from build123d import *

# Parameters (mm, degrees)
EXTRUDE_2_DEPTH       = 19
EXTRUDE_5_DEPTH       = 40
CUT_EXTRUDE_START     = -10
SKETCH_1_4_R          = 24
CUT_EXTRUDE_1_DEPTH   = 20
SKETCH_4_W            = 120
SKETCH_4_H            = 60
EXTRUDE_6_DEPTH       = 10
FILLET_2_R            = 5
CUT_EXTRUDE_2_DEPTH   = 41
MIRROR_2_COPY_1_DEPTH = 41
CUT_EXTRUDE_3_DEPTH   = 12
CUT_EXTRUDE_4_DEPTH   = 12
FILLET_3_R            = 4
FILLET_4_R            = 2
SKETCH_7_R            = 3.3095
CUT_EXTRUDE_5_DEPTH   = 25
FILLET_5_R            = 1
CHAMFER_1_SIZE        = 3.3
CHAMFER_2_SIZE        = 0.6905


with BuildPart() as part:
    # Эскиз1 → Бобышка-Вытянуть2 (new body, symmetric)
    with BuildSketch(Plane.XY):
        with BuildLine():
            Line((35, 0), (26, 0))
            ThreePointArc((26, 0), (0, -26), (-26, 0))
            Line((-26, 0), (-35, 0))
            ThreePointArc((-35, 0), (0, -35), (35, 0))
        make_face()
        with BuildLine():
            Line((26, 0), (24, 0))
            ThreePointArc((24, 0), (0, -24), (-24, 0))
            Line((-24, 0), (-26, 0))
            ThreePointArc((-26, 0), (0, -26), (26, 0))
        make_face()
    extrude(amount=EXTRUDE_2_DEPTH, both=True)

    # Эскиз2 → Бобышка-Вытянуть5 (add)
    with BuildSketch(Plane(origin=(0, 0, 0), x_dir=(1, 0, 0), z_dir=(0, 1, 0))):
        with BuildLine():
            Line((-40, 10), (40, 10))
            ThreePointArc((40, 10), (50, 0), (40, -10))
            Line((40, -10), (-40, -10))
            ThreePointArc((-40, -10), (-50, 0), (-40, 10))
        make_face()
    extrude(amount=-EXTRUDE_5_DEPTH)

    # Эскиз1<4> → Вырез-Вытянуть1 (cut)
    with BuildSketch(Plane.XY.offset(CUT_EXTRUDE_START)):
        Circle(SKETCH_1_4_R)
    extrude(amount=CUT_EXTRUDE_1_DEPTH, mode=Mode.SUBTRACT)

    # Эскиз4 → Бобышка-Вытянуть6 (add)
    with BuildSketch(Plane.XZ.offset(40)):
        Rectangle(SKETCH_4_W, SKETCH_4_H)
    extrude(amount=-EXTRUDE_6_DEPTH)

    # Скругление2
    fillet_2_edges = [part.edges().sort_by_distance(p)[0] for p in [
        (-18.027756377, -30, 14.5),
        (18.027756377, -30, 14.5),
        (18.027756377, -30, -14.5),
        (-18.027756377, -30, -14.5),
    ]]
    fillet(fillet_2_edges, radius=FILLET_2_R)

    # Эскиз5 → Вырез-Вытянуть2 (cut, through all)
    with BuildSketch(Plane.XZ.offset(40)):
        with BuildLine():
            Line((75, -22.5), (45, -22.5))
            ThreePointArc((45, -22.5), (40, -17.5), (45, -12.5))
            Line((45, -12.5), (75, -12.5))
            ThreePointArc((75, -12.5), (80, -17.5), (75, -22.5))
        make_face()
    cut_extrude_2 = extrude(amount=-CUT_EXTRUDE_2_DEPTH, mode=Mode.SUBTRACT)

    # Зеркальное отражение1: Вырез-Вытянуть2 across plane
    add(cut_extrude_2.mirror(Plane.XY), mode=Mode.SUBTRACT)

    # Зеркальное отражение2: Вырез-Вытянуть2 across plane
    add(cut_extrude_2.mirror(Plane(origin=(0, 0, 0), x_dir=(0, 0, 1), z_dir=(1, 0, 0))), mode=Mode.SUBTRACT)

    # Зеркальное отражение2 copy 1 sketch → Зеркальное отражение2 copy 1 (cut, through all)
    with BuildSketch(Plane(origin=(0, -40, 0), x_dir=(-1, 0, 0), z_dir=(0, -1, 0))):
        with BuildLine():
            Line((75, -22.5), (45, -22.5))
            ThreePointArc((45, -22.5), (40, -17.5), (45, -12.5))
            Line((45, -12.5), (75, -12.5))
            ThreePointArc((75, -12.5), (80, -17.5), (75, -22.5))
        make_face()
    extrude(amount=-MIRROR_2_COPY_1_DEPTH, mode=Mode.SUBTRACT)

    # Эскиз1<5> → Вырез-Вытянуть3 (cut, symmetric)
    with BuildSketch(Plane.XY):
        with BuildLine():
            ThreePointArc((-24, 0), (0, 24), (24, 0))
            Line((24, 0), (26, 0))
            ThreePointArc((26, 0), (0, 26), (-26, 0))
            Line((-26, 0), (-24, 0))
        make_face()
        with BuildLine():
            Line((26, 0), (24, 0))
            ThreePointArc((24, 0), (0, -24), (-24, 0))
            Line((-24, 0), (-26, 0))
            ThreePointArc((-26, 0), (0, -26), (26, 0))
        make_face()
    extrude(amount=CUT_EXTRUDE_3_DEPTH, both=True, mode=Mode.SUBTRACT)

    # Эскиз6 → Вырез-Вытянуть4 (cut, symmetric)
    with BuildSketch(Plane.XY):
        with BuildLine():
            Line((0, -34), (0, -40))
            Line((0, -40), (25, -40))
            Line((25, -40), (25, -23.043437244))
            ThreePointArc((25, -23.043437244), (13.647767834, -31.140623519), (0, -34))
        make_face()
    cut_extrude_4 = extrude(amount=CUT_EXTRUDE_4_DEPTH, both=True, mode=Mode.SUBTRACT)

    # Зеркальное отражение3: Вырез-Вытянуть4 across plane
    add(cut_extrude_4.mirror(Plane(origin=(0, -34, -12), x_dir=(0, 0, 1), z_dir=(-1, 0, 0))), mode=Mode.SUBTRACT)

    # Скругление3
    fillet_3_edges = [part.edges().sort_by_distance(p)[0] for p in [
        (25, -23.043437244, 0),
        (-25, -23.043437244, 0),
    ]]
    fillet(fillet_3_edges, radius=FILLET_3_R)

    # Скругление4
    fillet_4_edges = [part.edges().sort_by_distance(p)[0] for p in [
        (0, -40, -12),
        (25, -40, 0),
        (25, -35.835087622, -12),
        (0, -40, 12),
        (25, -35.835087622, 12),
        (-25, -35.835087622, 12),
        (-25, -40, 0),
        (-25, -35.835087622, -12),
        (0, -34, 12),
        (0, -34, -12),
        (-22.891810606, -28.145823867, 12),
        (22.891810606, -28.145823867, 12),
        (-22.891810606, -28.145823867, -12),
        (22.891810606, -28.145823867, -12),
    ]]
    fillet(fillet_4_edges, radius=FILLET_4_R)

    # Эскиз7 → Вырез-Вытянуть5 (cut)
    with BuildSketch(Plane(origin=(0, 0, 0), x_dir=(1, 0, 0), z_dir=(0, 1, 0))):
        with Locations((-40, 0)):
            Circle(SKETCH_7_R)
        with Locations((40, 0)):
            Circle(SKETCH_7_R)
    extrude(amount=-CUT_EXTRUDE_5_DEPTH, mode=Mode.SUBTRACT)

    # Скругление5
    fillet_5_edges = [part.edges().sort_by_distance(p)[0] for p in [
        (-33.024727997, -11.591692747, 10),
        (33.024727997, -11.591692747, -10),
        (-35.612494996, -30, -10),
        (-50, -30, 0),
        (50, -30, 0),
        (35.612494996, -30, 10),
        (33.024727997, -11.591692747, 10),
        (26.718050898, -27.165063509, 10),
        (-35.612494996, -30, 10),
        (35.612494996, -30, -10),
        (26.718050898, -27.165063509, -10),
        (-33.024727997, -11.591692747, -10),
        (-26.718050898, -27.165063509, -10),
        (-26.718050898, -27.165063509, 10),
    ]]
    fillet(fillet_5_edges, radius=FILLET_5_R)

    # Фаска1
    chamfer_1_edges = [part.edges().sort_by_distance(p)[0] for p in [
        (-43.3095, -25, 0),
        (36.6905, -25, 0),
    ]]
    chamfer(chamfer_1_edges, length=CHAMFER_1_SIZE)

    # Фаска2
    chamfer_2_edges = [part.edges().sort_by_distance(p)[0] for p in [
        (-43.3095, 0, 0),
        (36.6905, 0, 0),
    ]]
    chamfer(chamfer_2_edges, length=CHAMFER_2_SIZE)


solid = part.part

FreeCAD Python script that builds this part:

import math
import FreeCAD as App
import Part
import Sketcher

V = App.Vector
Q = App.Units.Quantity


def edges_at(feature, points):
    """Names of the edges that pass closest to the given points."""
    edges = feature.Shape.Edges
    near = lambda p: min(range(len(edges)), key=lambda i: edges[i].distToShape(Part.Vertex(*p))[0])
    return sorted({f"Edge{near(p) + 1}" for p in points})

doc = App.newDocument("Part")
body = doc.addObject("PartDesign::Body", "Body")

# Sketch on XY plane
sketch1 = body.newObject("Sketcher::SketchObject", "Sketch")
sketch1.AttachmentSupport = (doc.getObject("XY_Plane"), [""])
sketch1.MapMode = "FlatFace"
sketch1.addGeometry([
    Part.LineSegment(V(35, 0, 0), V(24, 0, 0)),
    Part.ArcOfCircle(Part.Circle(V(0, 0, 0), V(0, 0, 1), 24), math.radians(180), math.radians(360)),
    Part.LineSegment(V(-24, 0, 0), V(-35, 0, 0)),
    Part.ArcOfCircle(Part.Circle(V(0, 0, 0), V(0, 0, 1), 35), math.radians(180), math.radians(360)),
], False)
sketch1.addConstraint([
    Sketcher.Constraint("Coincident", 0, 2, 1, 2),
    Sketcher.Constraint("Coincident", 1, 1, 2, 1),
    Sketcher.Constraint("Coincident", 2, 2, 3, 1),
    Sketcher.Constraint("Coincident", 3, 2, 0, 1),
    Sketcher.Constraint("Horizontal", 0),
    Sketcher.Constraint("Horizontal", 2),
    Sketcher.Constraint("Coincident", 1, 3, -1, 1),
    Sketcher.Constraint("Coincident", 3, 3, -1, 1),
    Sketcher.Constraint("PointOnObject", 0, 2, -1),
    Sketcher.Constraint("PointOnObject", 1, 1, -1),
    Sketcher.Constraint("Radius", 1, Q("24 mm")),
    Sketcher.Constraint("Radius", 3, Q("35 mm")),
])
pad1 = body.newObject("PartDesign::Pad", "Pad")
pad1.Profile = sketch1
pad1.Length = 38
pad1.Midplane = True

# Sketch on XZ plane
sketch2 = body.newObject("Sketcher::SketchObject", "Sketch001")
sketch2.AttachmentSupport = (doc.getObject("XZ_Plane"), [""])
sketch2.MapMode = "FlatFace"
sketch2.addGeometry([
    Part.LineSegment(V(40, -10, 0), V(-40, -10, 0)),
    Part.ArcOfCircle(Part.Circle(V(-40, 0, 0), V(0, 0, 1), 10), math.radians(90), math.radians(270)),
    Part.LineSegment(V(-40, 10, 0), V(40, 10, 0)),
    Part.ArcOfCircle(Part.Circle(V(40, 0, 0), V(0, 0, 1), 10), math.radians(-90), math.radians(90)),
], False)
sketch2.addConstraint([
    Sketcher.Constraint("Tangent", 0, 2, 1, 2),
    Sketcher.Constraint("Tangent", 1, 1, 2, 1),
    Sketcher.Constraint("Tangent", 2, 2, 3, 2),
    Sketcher.Constraint("Tangent", 3, 1, 0, 1),
    Sketcher.Constraint("Horizontal", 0),
    Sketcher.Constraint("Horizontal", 2),
    Sketcher.Constraint("Symmetric", 1, 3, 3, 3, -1, 1),
    Sketcher.Constraint("Radius", 1, Q("10 mm")),
    Sketcher.Constraint("DistanceX", 0, 2, 0, 1, Q("80 mm")),
])
pad2 = body.newObject("PartDesign::Pad", "Pad001")
pad2.Profile = sketch2
pad2.Length = 40

# Sketch on XY plane
sketch3 = body.newObject("Sketcher::SketchObject", "Sketch002")
sketch3.AttachmentSupport = (doc.getObject("XY_Plane"), [""])
sketch3.MapMode = "FlatFace"
sketch3.AttachmentOffset = App.Placement(V(0, 0, -10), App.Rotation())
sketch3.addGeometry(Part.Circle(V(0, 0, 0), V(0, 0, 1), 24), False)
sketch3.addConstraint([
    Sketcher.Constraint("Coincident", 0, 3, -1, 1),
    Sketcher.Constraint("Diameter", 0, Q("48 mm")),
])
pocket1 = body.newObject("PartDesign::Pocket", "Pocket")
pocket1.Profile = sketch3
pocket1.Length = 20
pocket1.Reversed = True

# Sketch on XZ plane
sketch4 = body.newObject("Sketcher::SketchObject", "Sketch003")
sketch4.AttachmentSupport = (doc.getObject("XZ_Plane"), [""])
sketch4.MapMode = "FlatFace"
sketch4.AttachmentOffset = App.Placement(V(0, 0, 40), App.Rotation())
sketch4.addGeometry([
    Part.LineSegment(V(-60, 30, 0), V(-60, -30, 0)),
    Part.LineSegment(V(-60, -30, 0), V(60, -30, 0)),
    Part.LineSegment(V(60, -30, 0), V(60, 30, 0)),
    Part.LineSegment(V(60, 30, 0), V(-60, 30, 0)),
], False)
sketch4.addConstraint([
    Sketcher.Constraint("Coincident", 0, 2, 1, 1),
    Sketcher.Constraint("Coincident", 1, 2, 2, 1),
    Sketcher.Constraint("Coincident", 2, 2, 3, 1),
    Sketcher.Constraint("Coincident", 3, 2, 0, 1),
    Sketcher.Constraint("Vertical", 0),
    Sketcher.Constraint("Horizontal", 1),
    Sketcher.Constraint("Vertical", 2),
    Sketcher.Constraint("Horizontal", 3),
    Sketcher.Constraint("Symmetric", 0, 2, 2, 2, -1, 1),
    Sketcher.Constraint("DistanceX", 1, 1, 1, 2, Q("120 mm")),
    Sketcher.Constraint("DistanceY", 0, 2, 0, 1, Q("60 mm")),
])
pad3 = body.newObject("PartDesign::Pad", "Pad002")
pad3.Profile = sketch4
pad3.Length = 10
pad3.Reversed = True
doc.recompute()

fillet = body.newObject("PartDesign::Fillet", "Fillet")
fillet.Base = (pad3, edges_at(pad3, [
    (-18.028, -30, 14.5),
    (18.028, -30, 14.5),
    (18.028, -30, -14.5),
    (-18.028, -30, -14.5),
]))
fillet.Radius = 5

# Sketch on XZ plane
sketch5 = body.newObject("Sketcher::SketchObject", "Sketch004")
sketch5.AttachmentSupport = (doc.getObject("XZ_Plane"), [""])
sketch5.MapMode = "FlatFace"
sketch5.AttachmentOffset = App.Placement(V(0, 0, 40), App.Rotation())
sketch5.addGeometry([
    Part.LineSegment(V(45, -22.5, 0), V(75, -22.5, 0)),
    Part.ArcOfCircle(Part.Circle(V(75, -17.5, 0), V(0, 0, 1), 5), math.radians(-90), math.radians(90)),
    Part.LineSegment(V(75, -12.5, 0), V(45, -12.5, 0)),
    Part.ArcOfCircle(Part.Circle(V(45, -17.5, 0), V(0, 0, 1), 5), math.radians(90), math.radians(270)),
], False)
sketch5.addConstraint([
    Sketcher.Constraint("Tangent", 0, 2, 1, 1),
    Sketcher.Constraint("Tangent", 1, 2, 2, 1),
    Sketcher.Constraint("Tangent", 2, 2, 3, 1),
    Sketcher.Constraint("Tangent", 3, 2, 0, 1),
    Sketcher.Constraint("Horizontal", 0),
    Sketcher.Constraint("Horizontal", 2),
    Sketcher.Constraint("Radius", 1, Q("5 mm")),
    Sketcher.Constraint("DistanceX", 0, 1, 0, 2, Q("30 mm")),
    Sketcher.Constraint("DistanceX", -1, 1, 1, 3, Q("75 mm")),
    Sketcher.Constraint("DistanceY", 1, 3, -1, 1, Q("17.5 mm")),
])
pocket2 = body.newObject("PartDesign::Pocket", "Pocket001")
pocket2.Profile = sketch5
pocket2.Type = "ThroughAll"
doc.recompute()

mirrored = body.newObject("PartDesign::Mirrored", "Mirrored")
mirrored.Originals = [pocket2]
mirrored.MirrorPlane = (doc.getObject("XY_Plane"), [""])
body.Tip = mirrored
doc.recompute()

mirrored2 = body.newObject("PartDesign::Mirrored", "Mirrored001")
mirrored2.Originals = [pocket2]
mirrored2.MirrorPlane = (doc.getObject("YZ_Plane"), [""])
body.Tip = mirrored2

# Sketch on XZ plane
sketch6 = body.newObject("Sketcher::SketchObject", "Sketch005")
sketch6.AttachmentSupport = (doc.getObject("XZ_Plane"), [""])
sketch6.MapMode = "FlatFace"
sketch6.AttachmentOffset = App.Placement(V(0, 0, 40), App.Rotation())
sketch6.addGeometry([
    Part.LineSegment(V(-45, 22.5, 0), V(-75, 22.5, 0)),
    Part.ArcOfCircle(Part.Circle(V(-75, 17.5, 0), V(0, 0, 1), 5), math.radians(90), math.radians(270)),
    Part.LineSegment(V(-75, 12.5, 0), V(-45, 12.5, 0)),
    Part.ArcOfCircle(Part.Circle(V(-45, 17.5, 0), V(0, 0, 1), 5), math.radians(-90), math.radians(90)),
], False)
sketch6.addConstraint([
    Sketcher.Constraint("Tangent", 0, 2, 1, 1),
    Sketcher.Constraint("Tangent", 1, 2, 2, 1),
    Sketcher.Constraint("Tangent", 2, 2, 3, 1),
    Sketcher.Constraint("Tangent", 3, 2, 0, 1),
    Sketcher.Constraint("Horizontal", 0),
    Sketcher.Constraint("Horizontal", 2),
    Sketcher.Constraint("Radius", 1, Q("5 mm")),
    Sketcher.Constraint("DistanceX", 0, 2, 0, 1, Q("30 mm")),
    Sketcher.Constraint("DistanceX", 1, 3, -1, 1, Q("75 mm")),
    Sketcher.Constraint("DistanceY", -1, 1, 1, 3, Q("17.5 mm")),
])
pocket3 = body.newObject("PartDesign::Pocket", "Pocket002")
pocket3.Profile = sketch6
pocket3.Type = "ThroughAll"

# Sketch on XY plane
sketch7 = body.newObject("Sketcher::SketchObject", "Sketch006")
sketch7.AttachmentSupport = (doc.getObject("XY_Plane"), [""])
sketch7.MapMode = "FlatFace"
sketch7.addGeometry([
    Part.Circle(V(0, 0, 0), V(0, 0, 1), 26),
    Part.Circle(V(0, 0, 0), V(0, 0, 1), 24),
], False)
sketch7.addConstraint([
    Sketcher.Constraint("Coincident", 0, 3, -1, 1),
    Sketcher.Constraint("Coincident", 1, 3, -1, 1),
    Sketcher.Constraint("Diameter", 0, Q("52 mm")),
    Sketcher.Constraint("Diameter", 1, Q("48 mm")),
])
pocket4 = body.newObject("PartDesign::Pocket", "Pocket003")
pocket4.Profile = sketch7
pocket4.Length = 24
pocket4.Midplane = True

# Sketch on XY plane
sketch8 = body.newObject("Sketcher::SketchObject", "Sketch007")
sketch8.AttachmentSupport = (doc.getObject("XY_Plane"), [""])
sketch8.MapMode = "FlatFace"
sketch8.addGeometry([
    Part.LineSegment(V(0, -34, 0), V(0, -40, 0)),
    Part.LineSegment(V(0, -40, 0), V(25, -40, 0)),
    Part.LineSegment(V(25, -40, 0), V(25, -23.043437, 0)),
    Part.ArcOfCircle(Part.Circle(V(0, 0, 0), V(0, 0, 1), 34), math.radians(-90), math.radians(-42.667925)),
], False)
sketch8.addConstraint([
    Sketcher.Constraint("Coincident", 0, 2, 1, 1),
    Sketcher.Constraint("Coincident", 1, 2, 2, 1),
    Sketcher.Constraint("Coincident", 2, 2, 3, 2),
    Sketcher.Constraint("Coincident", 3, 1, 0, 1),
    Sketcher.Constraint("Vertical", 0),
    Sketcher.Constraint("Horizontal", 1),
    Sketcher.Constraint("Vertical", 2),
    Sketcher.Constraint("Coincident", 3, 3, -1, 1),
    Sketcher.Constraint("PointOnObject", 0, 2, -2),
    Sketcher.Constraint("Radius", 3, Q("34 mm")),
    Sketcher.Constraint("DistanceX", 1, 1, 1, 2, Q("25 mm")),
    Sketcher.Constraint("DistanceY", 0, 2, 0, 1, Q("6 mm")),
])
pocket5 = body.newObject("PartDesign::Pocket", "Pocket004")
pocket5.Profile = sketch8
pocket5.Length = 24
pocket5.Midplane = True
doc.recompute()

mirrored3 = body.newObject("PartDesign::Mirrored", "Mirrored002")
mirrored3.Originals = [pocket5]
mirrored3.MirrorPlane = (doc.getObject("YZ_Plane"), [""])
body.Tip = mirrored3
doc.recompute()

fillet2 = body.newObject("PartDesign::Fillet", "Fillet001")
fillet2.Base = (mirrored3, edges_at(mirrored3, [(25, -23.043, 0), (-25, -23.043, 0)]))
fillet2.Radius = 4
doc.recompute()

fillet3 = body.newObject("PartDesign::Fillet", "Fillet002")
fillet3.Base = (fillet2, edges_at(fillet2, [
    (0, -40, -12),
    (25, -40, 0),
    (25, -35.835, -12),
    (0, -40, 12),
    (25, -35.835, 12),
    (-25, -35.835, 12),
    (-25, -40, 0),
    (-25, -35.835, -12),
    (9.812, -32.553, 12),
    (9.812, -32.553, -12),
    (-22.892, -28.146, 12),
    (22.892, -28.146, 12),
    (-22.892, -28.146, -12),
    (22.892, -28.146, -12),
]))
fillet3.Radius = 2

# Sketch on XZ plane
sketch9 = body.newObject("Sketcher::SketchObject", "Sketch008")
sketch9.AttachmentSupport = (doc.getObject("XZ_Plane"), [""])
sketch9.MapMode = "FlatFace"
sketch9.addGeometry([
    Part.Circle(V(-40, 0, 0), V(0, 0, 1), 3.3095),
    Part.Circle(V(40, 0, 0), V(0, 0, 1), 3.3095),
], False)
sketch9.addConstraint([
    Sketcher.Constraint("Equal", 0, 1),
    Sketcher.Constraint("Symmetric", 0, 3, 1, 3, -1, 1),
    Sketcher.Constraint("PointOnObject", 0, 3, -1),
    Sketcher.Constraint("Diameter", 0, Q("6.619 mm")),
    Sketcher.Constraint("DistanceX", 0, 3, -1, 1, Q("40 mm")),
])
pocket6 = body.newObject("PartDesign::Pocket", "Pocket005")
pocket6.Profile = sketch9
pocket6.Length = 25
pocket6.Reversed = True
doc.recompute()

fillet4 = body.newObject("PartDesign::Fillet", "Fillet003")
fillet4.Base = (pocket6, edges_at(pocket6, [
    (-33.025, -11.592, 10),
    (33.025, -11.592, -10),
    (-35.612, -30, -10),
    (-50, -30, 0),
    (50, -30, 0),
    (35.612, -30, 10),
    (33.025, -11.592, 10),
    (26.718, -27.165, 10),
    (-35.612, -30, 10),
    (35.612, -30, -10),
    (26.718, -27.165, -10),
    (-33.025, -11.592, -10),
    (-26.718, -27.165, -10),
    (-26.718, -27.165, 10),
]))
fillet4.Radius = 1
doc.recompute()

chamfer = body.newObject("PartDesign::Chamfer", "Chamfer")
chamfer.Base = (fillet4, edges_at(fillet4, [(-43.309, -25, 0), (36.691, -25, 0)]))
chamfer.Size = 3.3
doc.recompute()

chamfer2 = body.newObject("PartDesign::Chamfer", "Chamfer001")
chamfer2.Base = (chamfer, edges_at(chamfer, [(-43.309, 0, 0), (36.691, 0, 0)]))
chamfer2.Size = 0.6905

doc.recompute()
